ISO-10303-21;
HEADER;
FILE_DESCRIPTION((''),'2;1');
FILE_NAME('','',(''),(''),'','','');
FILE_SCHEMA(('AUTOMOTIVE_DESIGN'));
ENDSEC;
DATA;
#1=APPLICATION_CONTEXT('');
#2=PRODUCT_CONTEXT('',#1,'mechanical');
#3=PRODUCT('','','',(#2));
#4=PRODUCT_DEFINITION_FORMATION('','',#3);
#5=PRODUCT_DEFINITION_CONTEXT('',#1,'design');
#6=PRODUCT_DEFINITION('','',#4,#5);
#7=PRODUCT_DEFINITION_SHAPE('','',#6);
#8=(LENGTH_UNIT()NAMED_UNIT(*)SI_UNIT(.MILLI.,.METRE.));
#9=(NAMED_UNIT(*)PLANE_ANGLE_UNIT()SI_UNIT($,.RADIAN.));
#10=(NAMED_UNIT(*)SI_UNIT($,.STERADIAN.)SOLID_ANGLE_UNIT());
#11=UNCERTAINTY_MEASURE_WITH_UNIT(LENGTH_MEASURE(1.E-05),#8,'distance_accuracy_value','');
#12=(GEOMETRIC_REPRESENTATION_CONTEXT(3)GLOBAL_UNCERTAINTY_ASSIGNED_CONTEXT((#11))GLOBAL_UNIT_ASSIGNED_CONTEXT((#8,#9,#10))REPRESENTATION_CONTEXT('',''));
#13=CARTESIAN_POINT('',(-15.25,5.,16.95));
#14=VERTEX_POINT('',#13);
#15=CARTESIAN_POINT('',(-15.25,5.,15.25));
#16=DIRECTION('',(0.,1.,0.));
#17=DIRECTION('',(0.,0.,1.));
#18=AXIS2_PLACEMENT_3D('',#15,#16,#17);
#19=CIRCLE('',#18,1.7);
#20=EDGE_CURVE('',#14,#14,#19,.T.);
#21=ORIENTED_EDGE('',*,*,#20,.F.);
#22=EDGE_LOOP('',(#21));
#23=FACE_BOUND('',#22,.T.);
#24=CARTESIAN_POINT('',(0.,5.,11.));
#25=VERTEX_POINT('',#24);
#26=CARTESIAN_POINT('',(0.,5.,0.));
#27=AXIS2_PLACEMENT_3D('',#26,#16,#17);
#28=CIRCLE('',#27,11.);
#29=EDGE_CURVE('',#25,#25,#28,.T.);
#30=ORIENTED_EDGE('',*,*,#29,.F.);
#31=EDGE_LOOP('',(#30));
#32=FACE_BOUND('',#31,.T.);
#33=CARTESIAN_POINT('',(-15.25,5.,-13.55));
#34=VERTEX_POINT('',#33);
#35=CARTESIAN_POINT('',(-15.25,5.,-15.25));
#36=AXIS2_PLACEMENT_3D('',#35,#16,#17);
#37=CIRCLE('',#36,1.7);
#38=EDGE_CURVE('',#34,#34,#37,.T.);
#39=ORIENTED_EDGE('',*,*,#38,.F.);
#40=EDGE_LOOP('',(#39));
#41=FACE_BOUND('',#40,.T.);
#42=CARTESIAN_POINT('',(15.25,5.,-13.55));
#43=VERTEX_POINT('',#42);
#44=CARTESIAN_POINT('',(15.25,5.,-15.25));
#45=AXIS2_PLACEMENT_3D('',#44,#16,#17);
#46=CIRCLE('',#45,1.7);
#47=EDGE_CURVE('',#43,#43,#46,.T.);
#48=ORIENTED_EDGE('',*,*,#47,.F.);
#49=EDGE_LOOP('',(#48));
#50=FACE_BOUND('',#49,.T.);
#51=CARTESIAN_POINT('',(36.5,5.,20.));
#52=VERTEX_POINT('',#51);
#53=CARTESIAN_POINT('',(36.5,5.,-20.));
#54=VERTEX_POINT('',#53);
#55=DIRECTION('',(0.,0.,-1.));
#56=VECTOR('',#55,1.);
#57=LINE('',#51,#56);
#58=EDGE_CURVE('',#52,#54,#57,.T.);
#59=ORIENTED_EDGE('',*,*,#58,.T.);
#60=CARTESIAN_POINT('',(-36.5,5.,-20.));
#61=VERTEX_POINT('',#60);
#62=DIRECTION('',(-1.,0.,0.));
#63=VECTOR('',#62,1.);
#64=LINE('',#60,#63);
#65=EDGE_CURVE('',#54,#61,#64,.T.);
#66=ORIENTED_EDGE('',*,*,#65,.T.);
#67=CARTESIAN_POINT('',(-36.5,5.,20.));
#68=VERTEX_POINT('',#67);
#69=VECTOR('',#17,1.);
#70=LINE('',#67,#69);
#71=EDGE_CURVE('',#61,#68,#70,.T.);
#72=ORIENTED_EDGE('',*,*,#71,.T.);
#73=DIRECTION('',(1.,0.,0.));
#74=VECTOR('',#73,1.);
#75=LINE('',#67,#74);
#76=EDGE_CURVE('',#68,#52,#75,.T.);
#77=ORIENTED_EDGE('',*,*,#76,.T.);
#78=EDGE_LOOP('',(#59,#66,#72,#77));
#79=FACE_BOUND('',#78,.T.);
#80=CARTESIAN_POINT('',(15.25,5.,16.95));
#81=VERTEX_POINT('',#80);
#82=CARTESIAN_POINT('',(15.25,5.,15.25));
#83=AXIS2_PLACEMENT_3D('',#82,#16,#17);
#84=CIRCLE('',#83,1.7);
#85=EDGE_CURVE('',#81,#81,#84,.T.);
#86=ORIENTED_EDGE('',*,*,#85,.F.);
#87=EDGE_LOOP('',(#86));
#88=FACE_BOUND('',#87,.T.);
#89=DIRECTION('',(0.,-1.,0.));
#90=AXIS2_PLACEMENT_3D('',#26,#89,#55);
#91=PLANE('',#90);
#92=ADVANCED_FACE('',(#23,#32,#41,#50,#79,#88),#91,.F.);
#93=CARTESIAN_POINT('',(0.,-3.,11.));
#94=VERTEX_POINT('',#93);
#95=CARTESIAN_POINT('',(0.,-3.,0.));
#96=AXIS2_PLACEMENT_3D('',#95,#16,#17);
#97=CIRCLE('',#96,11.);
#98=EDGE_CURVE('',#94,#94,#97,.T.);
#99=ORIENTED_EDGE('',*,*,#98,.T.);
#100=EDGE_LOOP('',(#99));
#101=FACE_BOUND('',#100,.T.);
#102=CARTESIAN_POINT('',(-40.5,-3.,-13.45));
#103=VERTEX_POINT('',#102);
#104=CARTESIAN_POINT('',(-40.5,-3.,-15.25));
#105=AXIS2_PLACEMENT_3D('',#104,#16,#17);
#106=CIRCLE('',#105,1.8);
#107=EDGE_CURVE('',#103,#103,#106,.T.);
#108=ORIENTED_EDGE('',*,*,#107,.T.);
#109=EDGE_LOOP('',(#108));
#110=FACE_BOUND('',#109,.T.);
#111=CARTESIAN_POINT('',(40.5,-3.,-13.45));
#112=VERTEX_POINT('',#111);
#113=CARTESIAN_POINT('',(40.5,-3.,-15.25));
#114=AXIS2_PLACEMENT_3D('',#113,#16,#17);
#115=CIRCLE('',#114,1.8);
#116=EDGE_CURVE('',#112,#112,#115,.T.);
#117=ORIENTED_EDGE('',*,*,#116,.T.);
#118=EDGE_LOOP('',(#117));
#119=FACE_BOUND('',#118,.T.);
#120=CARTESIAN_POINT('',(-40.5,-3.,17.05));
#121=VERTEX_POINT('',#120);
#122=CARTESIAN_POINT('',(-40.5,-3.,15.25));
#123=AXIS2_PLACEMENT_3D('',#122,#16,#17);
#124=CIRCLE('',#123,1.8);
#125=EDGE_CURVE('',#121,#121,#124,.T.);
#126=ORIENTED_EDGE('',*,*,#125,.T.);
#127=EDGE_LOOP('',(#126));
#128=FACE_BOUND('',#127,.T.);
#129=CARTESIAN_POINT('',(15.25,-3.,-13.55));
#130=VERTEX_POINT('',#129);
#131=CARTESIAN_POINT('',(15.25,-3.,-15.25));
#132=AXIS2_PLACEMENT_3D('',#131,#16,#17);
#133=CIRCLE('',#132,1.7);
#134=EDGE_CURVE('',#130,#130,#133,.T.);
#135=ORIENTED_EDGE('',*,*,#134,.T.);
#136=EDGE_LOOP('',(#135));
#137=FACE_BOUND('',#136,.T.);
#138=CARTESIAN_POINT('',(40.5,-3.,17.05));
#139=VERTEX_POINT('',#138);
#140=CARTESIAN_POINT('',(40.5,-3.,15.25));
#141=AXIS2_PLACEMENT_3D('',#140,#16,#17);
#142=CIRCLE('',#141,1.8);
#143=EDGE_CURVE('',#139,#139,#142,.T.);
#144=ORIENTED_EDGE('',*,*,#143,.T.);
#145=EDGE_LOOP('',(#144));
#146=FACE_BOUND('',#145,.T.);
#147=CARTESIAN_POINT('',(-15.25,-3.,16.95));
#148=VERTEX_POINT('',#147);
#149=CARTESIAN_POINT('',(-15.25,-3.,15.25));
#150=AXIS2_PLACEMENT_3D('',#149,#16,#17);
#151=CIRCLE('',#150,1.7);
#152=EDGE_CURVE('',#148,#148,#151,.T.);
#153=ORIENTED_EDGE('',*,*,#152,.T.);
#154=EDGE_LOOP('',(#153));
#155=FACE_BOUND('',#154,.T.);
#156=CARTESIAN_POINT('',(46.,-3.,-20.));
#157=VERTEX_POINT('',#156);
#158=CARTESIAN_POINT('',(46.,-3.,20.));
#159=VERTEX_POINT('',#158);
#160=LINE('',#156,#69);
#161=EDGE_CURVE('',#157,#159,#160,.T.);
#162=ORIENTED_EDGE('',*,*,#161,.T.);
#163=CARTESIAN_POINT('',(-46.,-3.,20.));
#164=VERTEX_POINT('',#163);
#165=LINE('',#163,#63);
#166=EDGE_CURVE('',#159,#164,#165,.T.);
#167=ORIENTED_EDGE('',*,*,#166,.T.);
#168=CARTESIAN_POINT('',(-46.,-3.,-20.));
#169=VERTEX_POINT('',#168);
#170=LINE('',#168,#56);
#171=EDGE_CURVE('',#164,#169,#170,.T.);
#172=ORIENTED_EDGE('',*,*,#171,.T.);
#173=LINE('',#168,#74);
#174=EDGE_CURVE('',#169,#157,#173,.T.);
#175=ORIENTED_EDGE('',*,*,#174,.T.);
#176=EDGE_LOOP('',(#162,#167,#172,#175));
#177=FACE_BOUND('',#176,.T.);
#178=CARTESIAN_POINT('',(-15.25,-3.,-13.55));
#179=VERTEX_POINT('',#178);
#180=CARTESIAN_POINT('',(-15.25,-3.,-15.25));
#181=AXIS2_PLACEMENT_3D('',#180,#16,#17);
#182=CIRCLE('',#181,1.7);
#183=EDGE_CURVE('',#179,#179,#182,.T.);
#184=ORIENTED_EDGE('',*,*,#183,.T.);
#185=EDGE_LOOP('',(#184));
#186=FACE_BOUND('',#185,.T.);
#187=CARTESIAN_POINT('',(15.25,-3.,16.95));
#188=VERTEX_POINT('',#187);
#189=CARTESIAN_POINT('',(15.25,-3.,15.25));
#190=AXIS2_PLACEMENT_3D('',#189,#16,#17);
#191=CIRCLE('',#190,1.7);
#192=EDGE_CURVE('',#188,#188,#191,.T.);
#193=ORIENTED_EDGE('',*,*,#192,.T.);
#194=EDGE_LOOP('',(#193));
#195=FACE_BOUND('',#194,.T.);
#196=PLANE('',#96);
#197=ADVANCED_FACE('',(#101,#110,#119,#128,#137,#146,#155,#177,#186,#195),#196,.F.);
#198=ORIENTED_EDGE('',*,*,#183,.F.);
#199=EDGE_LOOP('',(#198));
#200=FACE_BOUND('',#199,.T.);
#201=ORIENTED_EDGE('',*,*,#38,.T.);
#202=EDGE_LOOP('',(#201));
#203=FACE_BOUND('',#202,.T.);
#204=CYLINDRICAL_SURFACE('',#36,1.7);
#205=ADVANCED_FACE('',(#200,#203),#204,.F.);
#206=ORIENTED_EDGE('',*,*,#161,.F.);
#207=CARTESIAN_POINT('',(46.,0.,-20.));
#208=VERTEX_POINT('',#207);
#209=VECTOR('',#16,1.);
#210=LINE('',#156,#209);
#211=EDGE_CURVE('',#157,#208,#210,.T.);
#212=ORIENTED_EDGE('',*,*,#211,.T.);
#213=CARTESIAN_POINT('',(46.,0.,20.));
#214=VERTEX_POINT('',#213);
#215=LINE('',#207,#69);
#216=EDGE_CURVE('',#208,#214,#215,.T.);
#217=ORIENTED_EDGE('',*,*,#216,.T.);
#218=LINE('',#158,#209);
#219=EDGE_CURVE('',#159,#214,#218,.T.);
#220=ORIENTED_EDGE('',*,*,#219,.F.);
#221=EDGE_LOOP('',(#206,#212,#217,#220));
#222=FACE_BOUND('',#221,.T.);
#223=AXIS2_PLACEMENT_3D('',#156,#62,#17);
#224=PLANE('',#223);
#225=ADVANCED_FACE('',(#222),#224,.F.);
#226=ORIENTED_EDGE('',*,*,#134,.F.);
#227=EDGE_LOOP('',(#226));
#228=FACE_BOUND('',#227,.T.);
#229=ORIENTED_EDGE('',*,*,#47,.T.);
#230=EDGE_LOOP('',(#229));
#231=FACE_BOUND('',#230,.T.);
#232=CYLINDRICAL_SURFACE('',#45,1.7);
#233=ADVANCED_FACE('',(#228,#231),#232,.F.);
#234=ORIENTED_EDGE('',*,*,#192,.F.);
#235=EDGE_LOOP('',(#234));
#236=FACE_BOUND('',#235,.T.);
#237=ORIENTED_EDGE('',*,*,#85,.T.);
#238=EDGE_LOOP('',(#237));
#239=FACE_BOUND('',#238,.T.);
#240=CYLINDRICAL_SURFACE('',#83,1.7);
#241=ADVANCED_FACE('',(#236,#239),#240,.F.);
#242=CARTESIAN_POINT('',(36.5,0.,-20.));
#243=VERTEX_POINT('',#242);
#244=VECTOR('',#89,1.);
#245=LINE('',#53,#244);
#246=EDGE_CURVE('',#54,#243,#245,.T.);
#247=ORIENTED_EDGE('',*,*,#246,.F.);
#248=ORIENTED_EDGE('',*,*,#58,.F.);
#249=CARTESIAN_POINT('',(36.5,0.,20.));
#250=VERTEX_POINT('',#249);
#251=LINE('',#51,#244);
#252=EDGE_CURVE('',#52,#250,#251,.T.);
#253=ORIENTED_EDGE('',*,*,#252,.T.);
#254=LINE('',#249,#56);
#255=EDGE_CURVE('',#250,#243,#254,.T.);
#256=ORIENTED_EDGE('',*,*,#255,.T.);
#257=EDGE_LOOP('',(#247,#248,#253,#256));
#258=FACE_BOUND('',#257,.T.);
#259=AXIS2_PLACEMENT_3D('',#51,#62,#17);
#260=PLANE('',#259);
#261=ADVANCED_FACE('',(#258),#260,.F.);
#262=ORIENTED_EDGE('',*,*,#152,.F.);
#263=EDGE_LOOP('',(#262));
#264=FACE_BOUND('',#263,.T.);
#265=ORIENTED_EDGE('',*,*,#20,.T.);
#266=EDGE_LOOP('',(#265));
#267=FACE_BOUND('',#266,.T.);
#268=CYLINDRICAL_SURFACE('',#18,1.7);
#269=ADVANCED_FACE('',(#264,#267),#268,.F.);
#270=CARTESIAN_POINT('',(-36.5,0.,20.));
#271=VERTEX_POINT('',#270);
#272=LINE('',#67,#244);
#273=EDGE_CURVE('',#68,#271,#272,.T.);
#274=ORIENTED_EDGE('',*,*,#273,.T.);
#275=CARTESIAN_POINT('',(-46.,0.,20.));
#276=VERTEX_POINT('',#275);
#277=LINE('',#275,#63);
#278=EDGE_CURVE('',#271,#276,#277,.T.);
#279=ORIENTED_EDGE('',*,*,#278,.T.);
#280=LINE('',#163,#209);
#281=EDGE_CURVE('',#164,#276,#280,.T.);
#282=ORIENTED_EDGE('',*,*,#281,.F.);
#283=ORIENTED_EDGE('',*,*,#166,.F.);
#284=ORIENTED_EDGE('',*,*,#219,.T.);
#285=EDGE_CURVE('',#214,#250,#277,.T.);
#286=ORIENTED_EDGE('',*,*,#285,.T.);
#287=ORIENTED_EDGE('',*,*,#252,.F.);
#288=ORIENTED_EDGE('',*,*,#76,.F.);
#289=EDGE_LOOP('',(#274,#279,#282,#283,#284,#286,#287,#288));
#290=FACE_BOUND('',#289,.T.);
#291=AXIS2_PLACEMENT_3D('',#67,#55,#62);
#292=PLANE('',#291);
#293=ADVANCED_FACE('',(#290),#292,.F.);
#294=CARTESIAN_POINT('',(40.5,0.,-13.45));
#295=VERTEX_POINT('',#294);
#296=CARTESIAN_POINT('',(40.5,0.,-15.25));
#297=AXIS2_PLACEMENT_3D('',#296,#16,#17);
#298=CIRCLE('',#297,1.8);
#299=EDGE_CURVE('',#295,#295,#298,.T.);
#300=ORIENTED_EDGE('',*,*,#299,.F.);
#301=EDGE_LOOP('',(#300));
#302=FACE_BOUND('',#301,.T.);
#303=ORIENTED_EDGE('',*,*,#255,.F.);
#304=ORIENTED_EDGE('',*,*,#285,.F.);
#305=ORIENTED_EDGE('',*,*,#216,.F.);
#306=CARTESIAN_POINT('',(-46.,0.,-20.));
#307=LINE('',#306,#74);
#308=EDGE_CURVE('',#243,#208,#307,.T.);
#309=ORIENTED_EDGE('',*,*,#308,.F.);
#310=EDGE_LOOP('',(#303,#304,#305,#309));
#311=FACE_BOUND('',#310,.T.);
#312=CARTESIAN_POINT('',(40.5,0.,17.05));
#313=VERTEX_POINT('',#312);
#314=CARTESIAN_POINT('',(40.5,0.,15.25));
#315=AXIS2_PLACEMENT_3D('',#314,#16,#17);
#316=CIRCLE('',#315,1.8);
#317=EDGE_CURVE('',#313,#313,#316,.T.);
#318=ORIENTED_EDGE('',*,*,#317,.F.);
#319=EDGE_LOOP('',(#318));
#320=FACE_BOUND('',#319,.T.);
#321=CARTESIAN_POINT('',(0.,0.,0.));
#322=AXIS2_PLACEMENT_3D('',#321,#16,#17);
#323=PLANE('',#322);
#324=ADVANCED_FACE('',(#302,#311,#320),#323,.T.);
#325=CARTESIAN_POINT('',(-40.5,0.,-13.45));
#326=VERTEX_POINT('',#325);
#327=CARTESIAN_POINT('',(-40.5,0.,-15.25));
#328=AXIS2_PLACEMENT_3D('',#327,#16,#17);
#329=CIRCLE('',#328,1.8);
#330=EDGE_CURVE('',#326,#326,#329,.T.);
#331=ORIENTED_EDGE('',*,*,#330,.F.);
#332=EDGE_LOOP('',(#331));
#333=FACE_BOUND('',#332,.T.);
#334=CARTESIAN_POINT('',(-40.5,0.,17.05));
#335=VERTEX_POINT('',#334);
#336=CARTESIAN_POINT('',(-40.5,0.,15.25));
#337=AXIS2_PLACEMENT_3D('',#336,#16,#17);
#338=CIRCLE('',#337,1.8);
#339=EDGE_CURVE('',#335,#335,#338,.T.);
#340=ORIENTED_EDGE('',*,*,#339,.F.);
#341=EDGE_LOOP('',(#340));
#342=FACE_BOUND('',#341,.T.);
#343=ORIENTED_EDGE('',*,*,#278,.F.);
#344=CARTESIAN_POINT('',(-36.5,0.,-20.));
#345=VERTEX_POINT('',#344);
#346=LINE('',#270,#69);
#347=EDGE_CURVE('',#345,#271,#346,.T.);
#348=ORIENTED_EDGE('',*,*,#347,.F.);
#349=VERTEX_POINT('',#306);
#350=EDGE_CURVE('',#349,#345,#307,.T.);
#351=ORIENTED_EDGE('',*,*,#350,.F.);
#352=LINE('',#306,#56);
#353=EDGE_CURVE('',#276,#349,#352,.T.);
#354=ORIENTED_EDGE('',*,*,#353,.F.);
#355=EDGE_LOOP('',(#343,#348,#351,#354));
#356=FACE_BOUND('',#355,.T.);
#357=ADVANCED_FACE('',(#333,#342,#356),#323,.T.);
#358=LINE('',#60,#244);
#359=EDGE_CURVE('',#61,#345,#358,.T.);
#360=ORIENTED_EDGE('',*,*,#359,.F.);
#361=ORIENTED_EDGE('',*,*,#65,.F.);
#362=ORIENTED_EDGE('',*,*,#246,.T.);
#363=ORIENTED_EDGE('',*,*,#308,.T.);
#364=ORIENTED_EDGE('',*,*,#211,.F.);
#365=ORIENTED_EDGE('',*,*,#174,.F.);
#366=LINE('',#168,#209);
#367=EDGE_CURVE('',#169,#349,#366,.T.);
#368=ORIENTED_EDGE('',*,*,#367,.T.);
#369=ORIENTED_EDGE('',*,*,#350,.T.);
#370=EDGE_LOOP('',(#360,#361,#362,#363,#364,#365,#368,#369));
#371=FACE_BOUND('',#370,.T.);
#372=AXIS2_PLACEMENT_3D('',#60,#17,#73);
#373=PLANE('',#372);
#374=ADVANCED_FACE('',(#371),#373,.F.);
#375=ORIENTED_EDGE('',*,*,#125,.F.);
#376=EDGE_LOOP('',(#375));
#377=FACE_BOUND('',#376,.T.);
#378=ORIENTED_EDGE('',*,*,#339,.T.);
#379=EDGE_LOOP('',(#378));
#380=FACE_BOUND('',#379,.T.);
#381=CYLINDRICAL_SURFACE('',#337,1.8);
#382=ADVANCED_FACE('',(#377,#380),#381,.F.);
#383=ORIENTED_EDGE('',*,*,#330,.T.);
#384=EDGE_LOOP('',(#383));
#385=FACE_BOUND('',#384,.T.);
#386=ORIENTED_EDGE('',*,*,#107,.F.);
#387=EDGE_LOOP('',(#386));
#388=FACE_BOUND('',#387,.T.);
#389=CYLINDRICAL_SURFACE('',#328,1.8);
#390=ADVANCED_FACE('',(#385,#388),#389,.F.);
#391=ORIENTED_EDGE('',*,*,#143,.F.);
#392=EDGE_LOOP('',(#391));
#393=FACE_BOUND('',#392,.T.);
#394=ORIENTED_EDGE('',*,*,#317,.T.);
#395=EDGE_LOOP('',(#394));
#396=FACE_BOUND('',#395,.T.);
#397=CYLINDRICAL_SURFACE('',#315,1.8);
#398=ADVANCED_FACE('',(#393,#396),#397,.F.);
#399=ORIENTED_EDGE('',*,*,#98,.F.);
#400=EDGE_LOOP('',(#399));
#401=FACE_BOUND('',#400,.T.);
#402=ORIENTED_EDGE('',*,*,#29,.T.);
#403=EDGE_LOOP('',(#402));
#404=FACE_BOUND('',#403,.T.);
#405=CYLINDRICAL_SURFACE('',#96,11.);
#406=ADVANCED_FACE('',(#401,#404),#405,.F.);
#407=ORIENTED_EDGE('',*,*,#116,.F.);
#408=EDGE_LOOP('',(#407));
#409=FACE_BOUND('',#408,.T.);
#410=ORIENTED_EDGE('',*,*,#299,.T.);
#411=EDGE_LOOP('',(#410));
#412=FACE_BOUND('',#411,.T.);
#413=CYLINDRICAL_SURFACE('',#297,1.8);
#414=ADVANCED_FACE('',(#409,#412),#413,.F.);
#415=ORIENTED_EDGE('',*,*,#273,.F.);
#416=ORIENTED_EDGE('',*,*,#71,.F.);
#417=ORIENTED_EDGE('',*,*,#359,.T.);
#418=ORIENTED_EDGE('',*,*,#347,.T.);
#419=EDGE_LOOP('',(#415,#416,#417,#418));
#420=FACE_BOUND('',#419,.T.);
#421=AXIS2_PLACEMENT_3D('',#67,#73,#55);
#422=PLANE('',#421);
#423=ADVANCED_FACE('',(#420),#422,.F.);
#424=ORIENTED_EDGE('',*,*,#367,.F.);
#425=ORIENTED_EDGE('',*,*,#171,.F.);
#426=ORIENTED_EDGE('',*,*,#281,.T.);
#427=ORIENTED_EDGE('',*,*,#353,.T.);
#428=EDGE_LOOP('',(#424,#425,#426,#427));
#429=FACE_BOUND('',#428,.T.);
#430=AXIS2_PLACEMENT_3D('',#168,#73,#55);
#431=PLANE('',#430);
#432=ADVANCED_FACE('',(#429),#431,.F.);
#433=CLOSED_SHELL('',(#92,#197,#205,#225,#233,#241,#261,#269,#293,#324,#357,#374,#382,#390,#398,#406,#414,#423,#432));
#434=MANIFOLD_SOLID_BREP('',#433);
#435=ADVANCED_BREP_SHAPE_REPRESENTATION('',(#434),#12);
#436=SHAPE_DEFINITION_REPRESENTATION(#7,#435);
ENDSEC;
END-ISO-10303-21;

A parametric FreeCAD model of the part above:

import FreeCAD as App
import Part
import Sketcher

V = App.Vector


def add_polygon(sketch, points):
    """Adds a closed chain of lines whose ends are joined by coincident constraints."""
    first, n = sketch.GeometryCount, len(points)
    for a, b in zip(points, points[1:] + points[:1]):
        sketch.addGeometry(Part.LineSegment(App.Vector(*a, 0), App.Vector(*b, 0)), False)
    for i in range(n):
        sketch.addConstraint(Sketcher.Constraint("Coincident", first + i, 2, first + (i + 1) % n, 1))

doc = App.newDocument("Part")
params = doc.addObject("Spreadsheet::Sheet", "Params")
for row, (alias, value) in enumerate([
    ("sketch1_width", "73 mm"),
    ("sketch1_height", "40 mm"),
    ("pad1_length", "5 mm"),
    ("sketch2_width", "92 mm"),
    ("sketch2_height", "40 mm"),
    ("pad2_length", "3 mm"),
    ("sketch3_diameter", "3.6 mm"),
    ("hole_diameter", "3.6 mm"),
    ("sketch4_diameter", "3.4 mm"),
    ("hole2_diameter", "3.4 mm"),
    ("sketch5_diameter", "22 mm"),
], start=1):
    params.set(f"A{row}", alias)
    params.set(f"B{row}", "=" + value)
    params.setAlias(f"B{row}", alias)

body = doc.addObject("PartDesign::Body", "Body")

sketch1 = body.newObject("Sketcher::SketchObject", "Sketch")
sketch1.AttachmentSupport = (doc.getObject("XZ_Plane"), [""])
sketch1.MapMode = "FlatFace"
add_polygon(sketch1, [(-36.5, -20), (-36.5, 20), (36.5, 20), (36.5, -20)])
sketch1.addConstraint(Sketcher.Constraint("Vertical", 0))
sketch1.addConstraint(Sketcher.Constraint("Horizontal", 1))
sketch1.addConstraint(Sketcher.Constraint("Vertical", 2))
sketch1.addConstraint(Sketcher.Constraint("Horizontal", 3))
sketch1.addConstraint(Sketcher.Constraint("Symmetric", 0, 2, 2, 2, -1, 1))
sketch1.addConstraint(Sketcher.Constraint("DistanceX", 1, 1, 1, 2, 73.0))
sketch1.addConstraint(Sketcher.Constraint("DistanceY", 0, 1, 0, 2, 40.0))
sketch1.setExpression("Constraints[9]", "Params.sketch1_width")
sketch1.setExpression("Constraints[10]", "Params.sketch1_height")
pad1 = body.newObject("PartDesign::Pad", "Pad")
pad1.Profile = sketch1
pad1.setExpression("Length", "Params.pad1_length")
pad1.Reversed = True

sketch2 = body.newObject("Sketcher::SketchObject", "Sketch001")
sketch2.AttachmentSupport = (doc.getObject("XZ_Plane"), [""])
sketch2.MapMode = "FlatFace"
add_polygon(sketch2, [(-46, 20), (-46, -20), (46, -20), (46, 20)])
sketch2.addConstraint(Sketcher.Constraint("Vertical", 0))
sketch2.addConstraint(Sketcher.Constraint("Horizontal", 1))
sketch2.addConstraint(Sketcher.Constraint("Vertical", 2))
sketch2.addConstraint(Sketcher.Constraint("Horizontal", 3))
sketch2.addConstraint(Sketcher.Constraint("Symmetric", 0, 2, 2, 2, -1, 1))
sketch2.addConstraint(Sketcher.Constraint("DistanceX", 1, 1, 1, 2, 92.0))
sketch2.addConstraint(Sketcher.Constraint("DistanceY", 0, 2, 0, 1, 40.0))
sketch2.setExpression("Constraints[9]", "Params.sketch2_width")
sketch2.setExpression("Constraints[10]", "Params.sketch2_height")
pad2 = body.newObject("PartDesign::Pad", "Pad001")
pad2.Profile = sketch2
pad2.setExpression("Length", "Params.pad2_length")

sketch3 = body.newObject("Sketcher::SketchObject", "Sketch002")
sketch3.AttachmentSupport = (doc.getObject("XZ_Plane"), [""])
sketch3.MapMode = "FlatFace"
sketch3.addGeometry(Part.Circle(V(-40.5, -15.25, 0), V(0, 0, 1), 1.8), False)
sketch3.addGeometry(Part.Circle(V(-40.5, 15.25, 0), V(0, 0, 1), 1.8), False)
sketch3.addGeometry(Part.Circle(V(40.5, -15.25, 0), V(0, 0, 1), 1.8), False)
sketch3.addGeometry(Part.Circle(V(40.5, 15.25, 0), V(0, 0, 1), 1.8), False)
sketch3.addConstraint(Sketcher.Constraint("Equal", 0, 1))
sketch3.addConstraint(Sketcher.Constraint("Equal", 1, 2))
sketch3.addConstraint(Sketcher.Constraint("Equal", 2, 3))
sketch3.addConstraint(Sketcher.Constraint("Symmetric", 1, 3, 2, 3, -1, 1))
sketch3.addConstraint(Sketcher.Constraint("Symmetric", 0, 3, 3, 3, -1, 1))
sketch3.addConstraint(Sketcher.Constraint("Symmetric", 0, 3, 2, 3, -2))
sketch3.addConstraint(Sketcher.Constraint("Diameter", 0, 3.6))
sketch3.addConstraint(Sketcher.Constraint("DistanceX", 0, 3, 2, 3, 81.0))
sketch3.addConstraint(Sketcher.Constraint("DistanceY", 0, 3, 1, 3, 30.5))
sketch3.setExpression("Constraints[6]", "Params.sketch3_diameter")
doc.recompute()
hole = body.newObject("PartDesign::Hole", "Hole")
hole.Profile = sketch3
hole.ThreadType = "None"
hole.setExpression("Diameter", "Params.hole_diameter")
hole.DepthType = "ThroughAll"
hole.Reversed = True

sketch4 = body.newObject("Sketcher::SketchObject", "Sketch003")
sketch4.AttachmentSupport = (doc.getObject("XZ_Plane"), [""])
sketch4.MapMode = "FlatFace"
sketch4.AttachmentOffset = App.Placement(V(0, 0, -5), App.Rotation())
sketch4.addGeometry(Part.Circle(V(0, 0, 0), V(0, 0, 1), 1.7), False)
sketch4.addGeometry(Part.Circle(V(15.25, -15.25, 0), V(0, 0, 1), 1.7), False)
sketch4.addGeometry(Part.Circle(V(-15.25, 15.25, 0), V(0, 0, 1), 1.7), False)
sketch4.addGeometry(Part.Circle(V(-15.25, -15.25, 0), V(0, 0, 1), 1.7), False)
sketch4.addGeometry(Part.Circle(V(15.25, 15.25, 0), V(0, 0, 1), 1.7), False)
sketch4.addConstraint(Sketcher.Constraint("Coincident", 0, 3, -1, 1))
sketch4.addConstraint(Sketcher.Constraint("Equal", 0, 1))
sketch4.addConstraint(Sketcher.Constraint("Equal", 1, 2))
sketch4.addConstraint(Sketcher.Constraint("Equal", 2, 3))
sketch4.addConstraint(Sketcher.Constraint("Equal", 3, 4))
sketch4.addConstraint(Sketcher.Constraint("Symmetric", 1, 3, 2, 3, -1, 1))
sketch4.addConstraint(Sketcher.Constraint("Symmetric", 3, 3, 4, 3, -1, 1))
sketch4.addConstraint(Sketcher.Constraint("Symmetric", 1, 3, 3, 3, -2))
sketch4.addConstraint(Sketcher.Constraint("Diameter", 0, 3.4))
sketch4.addConstraint(Sketcher.Constraint("DistanceX", 2, 3, 1, 3, 30.5))
sketch4.addConstraint(Sketcher.Constraint("DistanceY", 1, 3, 2, 3, 30.5))
sketch4.setExpression("Constraints[8]", "Params.sketch4_diameter")
doc.recompute()
hole2 = body.newObject("PartDesign::Hole", "Hole001")
hole2.Profile = sketch4
hole2.ThreadType = "None"
hole2.setExpression("Diameter", "Params.hole2_diameter")
hole2.DepthType = "ThroughAll"
hole2.Reversed = True

sketch5 = body.newObject("Sketcher::SketchObject", "Sketch004")
sketch5.AttachmentSupport = (doc.getObject("XZ_Plane"), [""])
sketch5.MapMode = "FlatFace"
sketch5.AttachmentOffset = App.Placement(V(0, 0, -5), App.Rotation())
sketch5.addGeometry(Part.Circle(V(0, 0, 0), V(0, 0, 1), 11), False)
sketch5.addConstraint(Sketcher.Constraint("Coincident", 0, 3, -1, 1))
sketch5.addConstraint(Sketcher.Constraint("Diameter", 0, 22.0))
sketch5.setExpression("Constraints[1]", "Params.sketch5_diameter")
pocket1 = body.newObject("PartDesign::Pocket", "Pocket")
pocket1.Profile = sketch5
pocket1.Type = "ThroughAll"
pocket1.Reversed = True

doc.recompute()
